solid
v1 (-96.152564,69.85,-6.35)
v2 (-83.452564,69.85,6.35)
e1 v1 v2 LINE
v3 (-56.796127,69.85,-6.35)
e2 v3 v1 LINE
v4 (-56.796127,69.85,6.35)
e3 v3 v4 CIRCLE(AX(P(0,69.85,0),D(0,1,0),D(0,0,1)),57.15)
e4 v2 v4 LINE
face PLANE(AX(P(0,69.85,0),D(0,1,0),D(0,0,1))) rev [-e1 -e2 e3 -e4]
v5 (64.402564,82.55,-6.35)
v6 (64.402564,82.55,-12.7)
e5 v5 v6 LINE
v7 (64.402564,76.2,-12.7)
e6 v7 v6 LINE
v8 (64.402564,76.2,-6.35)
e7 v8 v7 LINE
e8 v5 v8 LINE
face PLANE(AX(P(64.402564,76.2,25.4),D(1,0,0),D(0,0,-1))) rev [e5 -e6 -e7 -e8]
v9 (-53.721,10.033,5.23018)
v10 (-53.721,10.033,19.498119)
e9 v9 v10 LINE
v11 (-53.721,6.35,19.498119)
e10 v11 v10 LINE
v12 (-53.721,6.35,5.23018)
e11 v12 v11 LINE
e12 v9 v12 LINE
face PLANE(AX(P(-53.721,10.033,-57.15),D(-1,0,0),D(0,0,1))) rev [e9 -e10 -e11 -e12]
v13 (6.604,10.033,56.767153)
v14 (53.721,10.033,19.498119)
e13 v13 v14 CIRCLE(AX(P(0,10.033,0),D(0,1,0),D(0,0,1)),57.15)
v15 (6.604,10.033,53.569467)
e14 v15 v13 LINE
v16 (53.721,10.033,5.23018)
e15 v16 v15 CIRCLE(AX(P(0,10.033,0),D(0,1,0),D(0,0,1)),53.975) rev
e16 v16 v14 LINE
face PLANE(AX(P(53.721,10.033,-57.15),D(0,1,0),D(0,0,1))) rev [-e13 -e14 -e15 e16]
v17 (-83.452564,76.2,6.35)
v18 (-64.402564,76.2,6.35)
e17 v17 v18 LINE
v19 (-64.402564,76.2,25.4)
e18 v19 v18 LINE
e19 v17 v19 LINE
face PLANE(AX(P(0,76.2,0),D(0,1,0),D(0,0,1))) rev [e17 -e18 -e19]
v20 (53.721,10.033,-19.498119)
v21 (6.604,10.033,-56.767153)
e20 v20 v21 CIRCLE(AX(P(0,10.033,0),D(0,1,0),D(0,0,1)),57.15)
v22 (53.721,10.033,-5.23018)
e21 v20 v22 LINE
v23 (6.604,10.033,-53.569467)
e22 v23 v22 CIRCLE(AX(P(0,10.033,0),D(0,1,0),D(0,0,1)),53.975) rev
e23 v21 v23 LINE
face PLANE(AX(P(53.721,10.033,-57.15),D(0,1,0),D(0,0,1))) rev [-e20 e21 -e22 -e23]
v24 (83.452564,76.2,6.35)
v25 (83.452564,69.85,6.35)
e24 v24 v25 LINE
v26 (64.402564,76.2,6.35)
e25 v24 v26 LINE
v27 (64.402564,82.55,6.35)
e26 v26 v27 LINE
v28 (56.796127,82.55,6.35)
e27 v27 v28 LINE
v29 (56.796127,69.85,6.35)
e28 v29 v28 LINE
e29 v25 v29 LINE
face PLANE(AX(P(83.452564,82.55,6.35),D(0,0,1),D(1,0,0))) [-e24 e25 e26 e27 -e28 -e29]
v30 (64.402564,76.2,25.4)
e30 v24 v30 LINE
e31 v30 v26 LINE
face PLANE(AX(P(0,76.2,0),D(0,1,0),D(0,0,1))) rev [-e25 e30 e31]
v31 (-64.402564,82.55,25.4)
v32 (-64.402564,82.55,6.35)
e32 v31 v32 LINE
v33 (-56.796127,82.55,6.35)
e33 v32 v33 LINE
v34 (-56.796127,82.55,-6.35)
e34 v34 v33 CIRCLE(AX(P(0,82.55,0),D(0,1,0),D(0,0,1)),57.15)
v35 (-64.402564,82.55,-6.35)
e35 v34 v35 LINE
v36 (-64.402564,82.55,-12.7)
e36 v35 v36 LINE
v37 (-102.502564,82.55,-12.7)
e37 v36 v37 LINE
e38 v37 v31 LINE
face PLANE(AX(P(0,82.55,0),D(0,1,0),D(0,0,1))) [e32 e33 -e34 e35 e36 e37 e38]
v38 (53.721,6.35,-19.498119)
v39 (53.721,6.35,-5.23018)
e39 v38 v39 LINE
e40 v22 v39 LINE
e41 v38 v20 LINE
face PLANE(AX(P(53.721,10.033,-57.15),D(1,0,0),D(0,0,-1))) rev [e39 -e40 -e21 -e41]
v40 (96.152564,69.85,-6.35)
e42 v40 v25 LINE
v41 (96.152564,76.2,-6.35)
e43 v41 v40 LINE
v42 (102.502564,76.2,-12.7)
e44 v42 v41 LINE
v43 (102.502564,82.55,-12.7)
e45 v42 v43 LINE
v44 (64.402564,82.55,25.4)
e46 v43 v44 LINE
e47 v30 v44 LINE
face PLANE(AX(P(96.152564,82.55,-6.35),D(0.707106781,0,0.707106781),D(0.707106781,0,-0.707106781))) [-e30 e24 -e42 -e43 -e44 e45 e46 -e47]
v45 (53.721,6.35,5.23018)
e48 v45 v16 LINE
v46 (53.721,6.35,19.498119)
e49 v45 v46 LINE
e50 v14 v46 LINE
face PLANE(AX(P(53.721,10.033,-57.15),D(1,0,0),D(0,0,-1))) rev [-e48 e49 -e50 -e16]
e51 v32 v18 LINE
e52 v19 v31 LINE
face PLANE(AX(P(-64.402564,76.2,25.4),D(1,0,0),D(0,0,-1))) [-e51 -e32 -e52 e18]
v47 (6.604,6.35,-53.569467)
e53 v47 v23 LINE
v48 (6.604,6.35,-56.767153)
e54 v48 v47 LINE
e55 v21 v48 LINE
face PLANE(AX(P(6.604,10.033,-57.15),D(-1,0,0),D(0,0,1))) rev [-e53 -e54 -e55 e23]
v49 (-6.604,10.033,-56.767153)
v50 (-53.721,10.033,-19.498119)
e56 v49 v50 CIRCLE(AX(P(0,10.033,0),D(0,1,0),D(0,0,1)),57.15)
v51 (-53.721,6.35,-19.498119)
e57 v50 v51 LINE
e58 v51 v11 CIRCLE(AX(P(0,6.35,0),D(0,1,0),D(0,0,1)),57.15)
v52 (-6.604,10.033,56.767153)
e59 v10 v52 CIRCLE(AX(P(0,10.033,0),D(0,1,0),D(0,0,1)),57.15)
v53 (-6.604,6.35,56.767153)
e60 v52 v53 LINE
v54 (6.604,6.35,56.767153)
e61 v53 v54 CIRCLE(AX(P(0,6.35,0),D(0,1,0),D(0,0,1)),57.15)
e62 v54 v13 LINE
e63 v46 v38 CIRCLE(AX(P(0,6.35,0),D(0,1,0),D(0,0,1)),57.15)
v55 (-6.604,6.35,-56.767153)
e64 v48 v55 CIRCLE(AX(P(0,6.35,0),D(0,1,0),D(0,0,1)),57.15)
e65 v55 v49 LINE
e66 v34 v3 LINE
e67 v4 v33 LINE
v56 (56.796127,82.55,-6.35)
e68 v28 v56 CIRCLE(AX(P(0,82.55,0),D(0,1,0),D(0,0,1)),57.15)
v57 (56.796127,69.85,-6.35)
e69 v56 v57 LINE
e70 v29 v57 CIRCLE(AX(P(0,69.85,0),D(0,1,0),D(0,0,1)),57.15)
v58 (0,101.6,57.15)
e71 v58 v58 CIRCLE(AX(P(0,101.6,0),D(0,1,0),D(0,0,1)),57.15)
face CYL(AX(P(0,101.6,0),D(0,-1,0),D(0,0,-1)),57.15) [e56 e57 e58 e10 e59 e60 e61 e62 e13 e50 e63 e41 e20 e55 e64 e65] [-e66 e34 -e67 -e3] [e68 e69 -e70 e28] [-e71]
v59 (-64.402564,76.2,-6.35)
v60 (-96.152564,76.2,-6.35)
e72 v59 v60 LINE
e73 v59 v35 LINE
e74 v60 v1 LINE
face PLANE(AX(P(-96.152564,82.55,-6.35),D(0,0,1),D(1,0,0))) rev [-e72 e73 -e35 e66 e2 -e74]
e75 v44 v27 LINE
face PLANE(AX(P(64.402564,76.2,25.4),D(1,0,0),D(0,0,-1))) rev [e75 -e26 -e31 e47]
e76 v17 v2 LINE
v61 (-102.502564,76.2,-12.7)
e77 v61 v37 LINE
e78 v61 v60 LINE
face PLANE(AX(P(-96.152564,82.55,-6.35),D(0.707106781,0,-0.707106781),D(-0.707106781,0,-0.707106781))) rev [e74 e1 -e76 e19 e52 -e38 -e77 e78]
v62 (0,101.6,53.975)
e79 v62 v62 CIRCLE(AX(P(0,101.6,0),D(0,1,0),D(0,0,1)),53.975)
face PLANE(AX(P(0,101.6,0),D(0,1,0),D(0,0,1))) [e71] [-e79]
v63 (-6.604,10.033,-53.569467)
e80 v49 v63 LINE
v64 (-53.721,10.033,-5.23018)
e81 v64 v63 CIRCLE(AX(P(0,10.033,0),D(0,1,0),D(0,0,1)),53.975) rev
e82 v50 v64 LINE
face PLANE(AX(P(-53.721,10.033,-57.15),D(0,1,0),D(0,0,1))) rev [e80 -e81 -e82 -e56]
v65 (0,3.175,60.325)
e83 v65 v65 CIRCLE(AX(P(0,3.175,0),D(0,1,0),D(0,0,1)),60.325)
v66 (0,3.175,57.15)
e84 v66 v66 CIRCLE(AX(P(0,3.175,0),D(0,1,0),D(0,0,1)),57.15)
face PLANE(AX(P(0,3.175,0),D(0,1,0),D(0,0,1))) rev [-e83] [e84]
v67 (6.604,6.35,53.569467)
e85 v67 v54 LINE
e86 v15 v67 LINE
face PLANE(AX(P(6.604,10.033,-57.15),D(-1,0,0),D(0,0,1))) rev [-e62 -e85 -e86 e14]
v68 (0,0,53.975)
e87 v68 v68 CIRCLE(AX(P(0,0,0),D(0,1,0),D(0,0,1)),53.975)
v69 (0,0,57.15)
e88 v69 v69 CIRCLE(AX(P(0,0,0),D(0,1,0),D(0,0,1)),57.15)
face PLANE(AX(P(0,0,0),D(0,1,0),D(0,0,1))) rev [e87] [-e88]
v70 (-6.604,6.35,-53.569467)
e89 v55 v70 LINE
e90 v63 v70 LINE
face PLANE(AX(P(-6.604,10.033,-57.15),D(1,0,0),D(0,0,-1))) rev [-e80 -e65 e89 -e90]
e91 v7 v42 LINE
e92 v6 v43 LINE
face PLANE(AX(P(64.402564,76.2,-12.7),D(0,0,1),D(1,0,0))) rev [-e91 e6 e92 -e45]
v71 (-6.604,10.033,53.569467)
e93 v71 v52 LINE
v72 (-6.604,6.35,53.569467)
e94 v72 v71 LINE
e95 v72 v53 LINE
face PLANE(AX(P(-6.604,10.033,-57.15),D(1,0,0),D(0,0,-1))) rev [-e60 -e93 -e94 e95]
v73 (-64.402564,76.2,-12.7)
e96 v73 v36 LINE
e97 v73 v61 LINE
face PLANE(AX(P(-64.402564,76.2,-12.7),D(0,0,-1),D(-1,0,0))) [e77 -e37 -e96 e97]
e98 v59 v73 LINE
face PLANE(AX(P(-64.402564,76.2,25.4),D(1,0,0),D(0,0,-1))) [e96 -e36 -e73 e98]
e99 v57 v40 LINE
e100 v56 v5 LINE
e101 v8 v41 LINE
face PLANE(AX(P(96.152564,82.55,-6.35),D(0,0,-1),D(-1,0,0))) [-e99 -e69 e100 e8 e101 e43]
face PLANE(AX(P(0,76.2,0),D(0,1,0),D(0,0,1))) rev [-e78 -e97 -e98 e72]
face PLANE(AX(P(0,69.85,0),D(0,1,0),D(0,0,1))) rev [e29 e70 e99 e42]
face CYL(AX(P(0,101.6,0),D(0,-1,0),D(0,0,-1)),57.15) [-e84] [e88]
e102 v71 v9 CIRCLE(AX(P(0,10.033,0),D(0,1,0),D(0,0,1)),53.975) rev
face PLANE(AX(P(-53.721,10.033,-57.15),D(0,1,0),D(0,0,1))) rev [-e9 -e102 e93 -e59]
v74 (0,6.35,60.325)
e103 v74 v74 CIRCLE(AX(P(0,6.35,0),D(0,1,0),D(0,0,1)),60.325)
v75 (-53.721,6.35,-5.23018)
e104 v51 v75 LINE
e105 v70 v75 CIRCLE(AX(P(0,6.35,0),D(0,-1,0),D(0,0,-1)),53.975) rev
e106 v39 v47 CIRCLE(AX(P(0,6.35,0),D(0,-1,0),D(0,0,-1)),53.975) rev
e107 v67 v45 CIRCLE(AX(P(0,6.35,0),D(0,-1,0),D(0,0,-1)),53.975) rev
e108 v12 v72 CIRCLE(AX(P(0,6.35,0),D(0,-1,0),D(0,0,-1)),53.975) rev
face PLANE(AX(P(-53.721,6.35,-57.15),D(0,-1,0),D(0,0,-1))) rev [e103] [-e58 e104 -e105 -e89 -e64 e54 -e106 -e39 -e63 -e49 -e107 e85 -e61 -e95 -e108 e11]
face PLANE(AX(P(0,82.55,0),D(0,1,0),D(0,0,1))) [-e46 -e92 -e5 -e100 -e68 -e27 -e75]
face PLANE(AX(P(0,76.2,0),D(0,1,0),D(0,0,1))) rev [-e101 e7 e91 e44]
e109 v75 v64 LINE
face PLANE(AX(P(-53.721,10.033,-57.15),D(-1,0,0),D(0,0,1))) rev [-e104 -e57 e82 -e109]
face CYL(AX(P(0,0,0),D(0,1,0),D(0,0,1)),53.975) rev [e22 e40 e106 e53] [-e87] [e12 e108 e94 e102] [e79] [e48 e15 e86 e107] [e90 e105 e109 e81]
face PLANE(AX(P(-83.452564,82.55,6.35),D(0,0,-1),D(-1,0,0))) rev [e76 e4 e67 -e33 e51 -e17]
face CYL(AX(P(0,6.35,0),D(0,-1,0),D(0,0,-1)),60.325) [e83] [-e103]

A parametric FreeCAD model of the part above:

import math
import FreeCAD as App
import Part
import Sketcher

V = App.Vector
Q = App.Units.Quantity


def add_polygon(sketch, points):
    """Adds a closed chain of lines whose ends are joined by coincident constraints."""
    first, n = sketch.GeometryCount, len(points)
    for a, b in zip(points, points[1:] + points[:1]):
        sketch.addGeometry(Part.LineSegment(App.Vector(*a, 0), App.Vector(*b, 0)), False)
    for i in range(n):
        sketch.addConstraint(Sketcher.Constraint("Coincident", first + i, 2, first + (i + 1) % n, 1))

doc = App.newDocument("Part")
body = doc.addObject("PartDesign::Body", "Body")

sketch1 = body.newObject("Sketcher::SketchObject", "Sketch")
sketch1.AttachmentSupport = (doc.getObject("XZ_Plane"), [""])
sketch1.MapMode = "FlatFace"
sketch1.addGeometry(Part.Circle(V(0, 0, 0), V(0, 0, 1), 57), False)
sketch1.addConstraint(Sketcher.Constraint("Coincident", 0, 3, -1, 1))
sketch1.addConstraint(Sketcher.Constraint("Diameter", 0, Q("4.5 in")))
pad1 = body.newObject("PartDesign::Pad", "Pad")
pad1.Profile = sketch1
pad1.Length = Q("4 in")
pad1.Reversed = True

sketch2 = body.newObject("Sketcher::SketchObject", "Sketch001")
sketch2.AttachmentSupport = (doc.getObject("XZ_Plane"), [""])
sketch2.MapMode = "FlatFace"
sketch2.AttachmentOffset = App.Placement(V(0, 0, -4 * 25.4), App.Rotation())
sketch2.addGeometry(Part.Circle(V(0, 0, 0), V(0, 0, 1), 54), False)
sketch2.addConstraint(Sketcher.Constraint("Coincident", 0, 3, -1, 1))
sketch2.addConstraint(Sketcher.Constraint("Diameter", 0, Q("4.25 in")))
pocket1 = body.newObject("PartDesign::Pocket", "Pocket")
pocket1.Profile = sketch2
pocket1.Type = "ThroughAll"
pocket1.Reversed = True

sketch3 = body.newObject("Sketcher::SketchObject", "Sketch002")
sketch3.AttachmentSupport = (doc.getObject("XY_Plane"), [""])
sketch3.MapMode = "FlatFace"
add_polygon(sketch3, [(-53.7, 10), (-53.7, 6.3), (-6.6, 6.3), (-6.6, 10)])
add_polygon(sketch3, [(6.6, 10), (6.6, 6.3), (53.7, 6.3), (53.7, 10)])
sketch3.addConstraint(Sketcher.Constraint("Vertical", 0))
sketch3.addConstraint(Sketcher.Constraint("Horizontal", 1))
sketch3.addConstraint(Sketcher.Constraint("Vertical", 2))
sketch3.addConstraint(Sketcher.Constraint("Horizontal", 3))
sketch3.addConstraint(Sketcher.Constraint("Vertical", 4))
sketch3.addConstraint(Sketcher.Constraint("Horizontal", 5))
sketch3.addConstraint(Sketcher.Constraint("Vertical", 6))
sketch3.addConstraint(Sketcher.Constraint("Horizontal", 7))
sketch3.addConstraint(Sketcher.Constraint("Symmetric", 1, 2, 4, 2, -2))
sketch3.addConstraint(Sketcher.Constraint("Symmetric", 3, 2, 6, 2, -2))
sketch3.addConstraint(Sketcher.Constraint("DistanceX", 1, 1, 1, 2, Q("1.855 in")))
sketch3.addConstraint(Sketcher.Constraint("DistanceY", 0, 2, 0, 1, Q("0.145 in")))
sketch3.addConstraint(Sketcher.Constraint("DistanceY", -1, 1, 0, 2, Q("0.25 in")))
sketch3.addConstraint(Sketcher.Constraint("DistanceX", 1, 2, -1, 1, Q("0.26 in")))
pocket2 = body.newObject("PartDesign::Pocket", "Pocket001")
pocket2.Profile = sketch3
pocket2.Type = "ThroughAll"
pocket2.Midplane = True

sketch4 = body.newObject("Sketcher::SketchObject", "Sketch003")
sketch4.AttachmentSupport = (doc.getObject("XZ_Plane"), [""])
sketch4.MapMode = "FlatFace"
sketch4.AttachmentOffset = App.Placement(V(0, 0, -0.125 * 25.4), App.Rotation())
sketch4.addGeometry(Part.Circle(V(0, 0, 0), V(0, 0, 1), 60), False)
sketch4.addGeometry(Part.Circle(V(0, 0, 0), V(0, 0, 1), 57), False)
sketch4.addConstraint(Sketcher.Constraint("Coincident", 0, 3, -1, 1))
sketch4.addConstraint(Sketcher.Constraint("Coincident", 1, 3, -1, 1))
sketch4.addConstraint(Sketcher.Constraint("Diameter", 1, Q("4.5 in")))
sketch4.addConstraint(Sketcher.Constraint("Diameter", 0, Q("4.75 in")))
pad2 = body.newObject("PartDesign::Pad", "Pad001")
pad2.Profile = sketch4
pad2.Length = Q("0.125 in")
pad2.Reversed = True

sketch5 = body.newObject("Sketcher::SketchObject", "Sketch004")
sketch5.AttachmentSupport = (doc.getObject("XZ_Plane"), [""])
sketch5.MapMode = "FlatFace"
sketch5.AttachmentOffset = App.Placement(V(0, 0, -3.25 * 25.4), App.Rotation())
sketch5.addGeometry(Part.LineSegment(V(-83, 6, 0), V(-54, 6, 0)), False)
sketch5.addGeometry(Part.ArcOfCircle(Part.Circle(V(0, 0, 0), V(0, 0, 1), 54), math.radians(173.24), math.radians(186.76)), False)
sketch5.addGeometry(Part.LineSegment(V(-54, -6, 0), V(-96, -6, 0)), False)
sketch5.addGeometry(Part.LineSegment(V(-96, -6, 0), V(-83, 6, 0)), False)
sketch5.addConstraint(Sketcher.Constraint("Coincident", 0, 2, 1, 1))
sketch5.addConstraint(Sketcher.Constraint("Coincident", 1, 2, 2, 1))
sketch5.addConstraint(Sketcher.Constraint("Coincident", 2, 2, 3, 1))
sketch5.addConstraint(Sketcher.Constraint("Coincident", 3, 2, 0, 1))
sketch5.addConstraint(Sketcher.Constraint("Horizontal", 0))
sketch5.addConstraint(Sketcher.Constraint("Horizontal", 2))
sketch5.addConstraint(Sketcher.Constraint("Coincident", 1, 3, -1, 1))
sketch5.addConstraint(Sketcher.Constraint("Vertical", 0, 2, 1, 2))
sketch5.addConstraint(Sketcher.Constraint("Angle", 3, Q("45 deg")))
sketch5.addConstraint(Sketcher.Constraint("Radius", 1, Q("2.125 in")))
sketch5.addConstraint(Sketcher.Constraint("DistanceY", 1, 2, 0, 2, Q("0.5 in")))
sketch5.addConstraint(Sketcher.Constraint("DistanceX", 0, 1, 0, 2, 29.852395))
pad3 = body.newObject("PartDesign::Pad", "Pad002")
pad3.Profile = sketch5
pad3.Length = Q("0.5 in")

sketch6 = body.newObject("Sketcher::SketchObject", "Sketch005")
sketch6.AttachmentSupport = (doc.getObject("XZ_Plane"), [""])
sketch6.MapMode = "FlatFace"
sketch6.AttachmentOffset = App.Placement(V(0, 0, -3.25 * 25.4), App.Rotation())
add_polygon(sketch6, [(-64, 25), (-64, -13), (-103, -13)])
sketch6.addConstraint(Sketcher.Constraint("Vertical", 0))
sketch6.addConstraint(Sketcher.Constraint("Horizontal", 1))
sketch6.addConstraint(Sketcher.Constraint("Equal", 1, 0))
sketch6.addConstraint(Sketcher.Constraint("DistanceX", 1, 2, 1, 1, Q("1.5 in")))
sketch6.addConstraint(Sketcher.Constraint("DistanceY", -1, 1, 2, 2, Q("1 in")))
sketch6.addConstraint(Sketcher.Constraint("DistanceX", 0, 2, -1, 1, 64.402564))
pad4 = body.newObject("PartDesign::Pad", "Pad003")
pad4.Profile = sketch6
pad4.Length = Q("0.25 in")
doc.recompute()

mirrored = body.newObject("PartDesign::Mirrored", "Mirrored")
mirrored.Originals = [pad3, pad4]
mirrored.MirrorPlane = (doc.getObject("YZ_Plane"), [""])
body.Tip = mirrored

doc.recompute()
